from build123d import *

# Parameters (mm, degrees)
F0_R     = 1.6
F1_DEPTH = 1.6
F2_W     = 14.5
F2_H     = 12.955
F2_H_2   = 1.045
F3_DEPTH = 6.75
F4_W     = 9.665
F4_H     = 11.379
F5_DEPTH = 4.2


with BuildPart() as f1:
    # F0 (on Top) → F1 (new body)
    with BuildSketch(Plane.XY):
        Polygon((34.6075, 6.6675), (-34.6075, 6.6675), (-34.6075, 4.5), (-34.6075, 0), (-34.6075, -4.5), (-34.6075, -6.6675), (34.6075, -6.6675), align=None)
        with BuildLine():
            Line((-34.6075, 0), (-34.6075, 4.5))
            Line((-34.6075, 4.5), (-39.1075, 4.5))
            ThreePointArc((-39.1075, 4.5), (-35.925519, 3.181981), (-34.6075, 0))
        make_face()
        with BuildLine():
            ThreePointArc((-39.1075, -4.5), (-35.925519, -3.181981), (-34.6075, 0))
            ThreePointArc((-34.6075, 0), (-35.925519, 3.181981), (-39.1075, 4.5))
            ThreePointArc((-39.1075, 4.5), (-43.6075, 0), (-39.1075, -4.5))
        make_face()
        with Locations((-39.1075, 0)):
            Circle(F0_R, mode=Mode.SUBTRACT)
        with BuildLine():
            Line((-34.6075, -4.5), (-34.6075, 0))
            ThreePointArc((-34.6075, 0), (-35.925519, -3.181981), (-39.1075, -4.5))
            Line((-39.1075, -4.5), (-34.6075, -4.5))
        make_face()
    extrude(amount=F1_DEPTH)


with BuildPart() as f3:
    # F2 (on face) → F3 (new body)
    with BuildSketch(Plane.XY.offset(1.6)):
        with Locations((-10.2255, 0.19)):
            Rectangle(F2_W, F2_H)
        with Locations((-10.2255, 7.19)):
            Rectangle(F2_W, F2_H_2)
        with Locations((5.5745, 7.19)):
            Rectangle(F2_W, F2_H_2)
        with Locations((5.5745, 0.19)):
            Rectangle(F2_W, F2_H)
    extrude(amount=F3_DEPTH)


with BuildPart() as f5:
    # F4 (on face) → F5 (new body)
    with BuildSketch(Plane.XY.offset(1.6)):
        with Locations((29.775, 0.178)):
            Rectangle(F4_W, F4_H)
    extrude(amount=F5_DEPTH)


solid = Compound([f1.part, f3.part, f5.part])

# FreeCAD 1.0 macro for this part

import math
import FreeCAD as App
import Part
import Sketcher
from FreeCAD import Vector

doc = App.newDocument("Part")
params = doc.addObject("Spreadsheet::Sheet", "Params")
for row, (alias, value) in enumerate([
    ("sketch1_diameter", "3.2 mm"),
    ("sketch1_radius", "4.5 mm"),
    ("sketch1_width", "4.5 mm"),
    ("pad1_length", "1.6 mm"),
    ("sketch2_height", "14 mm"),
    ("sketch2_width", "14.5 mm"),
    ("pad2_length", "6.75 mm"),
    ("pad3_length", "4.2 mm"),
], start=1):
    params.set(f"A{row}", alias)
    params.set(f"B{row}", "=" + value)
    params.setAlias(f"B{row}", alias)

body = doc.addObject("PartDesign::Body", "Body")

sketch1 = doc.addObject("Sketcher::SketchObject", "Sketch")
body.addObject(sketch1)
sketch1.AttachmentSupport = (doc.XY_Plane, [""])
sketch1.MapMode = "FlatFace"
sketch1.addGeometry([
    Part.LineSegment(Vector(34.6, 6.7, 0), Vector(-34.6, 6.7, 0)),
    Part.LineSegment(Vector(-34.6, 6.7, 0), Vector(-34.6, 4.5, 0)),
    Part.LineSegment(Vector(-34.6, 4.5, 0), Vector(-39.1, 4.5, 0)),
    Part.ArcOfCircle(Part.Circle(Vector(-39.1, 0, 0), Vector(0, 0, 1), 4.5), math.radians(90), math.radians(270)),
    Part.LineSegment(Vector(-39.1, -4.5, 0), Vector(-34.6, -4.5, 0)),
    Part.LineSegment(Vector(-34.6, -4.5, 0), Vector(-34.6, -6.7, 0)),
    Part.LineSegment(Vector(-34.6, -6.7, 0), Vector(34.6, -6.7, 0)),
    Part.LineSegment(Vector(34.6, -6.7, 0), Vector(34.6, 6.7, 0)),
    Part.Circle(Vector(-39.1, 0, 0), Vector(0, 0, 1), 1.6),
], False)
sketch1.addConstraint([
    Sketcher.Constraint("Coincident", 0, 2, 1, 1),
    Sketcher.Constraint("Coincident", 1, 2, 2, 1),
    Sketcher.Constraint("Tangent", 2, 2, 3, 1),
    Sketcher.Constraint("Tangent", 3, 2, 4, 1),
    Sketcher.Constraint("Coincident", 4, 2, 5, 1),
    Sketcher.Constraint("Coincident", 5, 2, 6, 1),
    Sketcher.Constraint("Coincident", 6, 2, 7, 1),
    Sketcher.Constraint("Coincident", 7, 2, 0, 1),
    Sketcher.Constraint("Horizontal", 0),
    Sketcher.Constraint("Vertical", 1),
    Sketcher.Constraint("Horizontal", 2),
    Sketcher.Constraint("Horizontal", 4),
    Sketcher.Constraint("Vertical", 5),
    Sketcher.Constraint("Horizontal", 6),
    Sketcher.Constraint("Vertical", 7),
    Sketcher.Constraint("Coincident", 8, 3, 3, 3),
    Sketcher.Constraint("Symmetric", 0, 2, 6, 2, -1, 1),
    Sketcher.Constraint("Symmetric", 1, 2, 4, 2, -1),
    Sketcher.Constraint("Diameter", 8, 3.2),
    Sketcher.Constraint("Radius", 3, 4.5),
    Sketcher.Constraint("DistanceX", 2, 2, 2, 1, 4.5),
    Sketcher.Constraint("DistanceX", 0, 2, 0, 1, 69.215),
    Sketcher.Constraint("DistanceY", 7, 1, 7, 2, 13.335),
])
sketch1.setExpression("Constraints[18]", "Params.sketch1_diameter")
sketch1.setExpression("Constraints[19]", "Params.sketch1_radius")
sketch1.setExpression("Constraints[20]", "Params.sketch1_width")
pad1 = doc.addObject("PartDesign::Pad", "Pad")
body.addObject(pad1)
pad1.Profile = sketch1
pad1.setExpression("Length", "Params.pad1_length")
body2 = doc.addObject("PartDesign::Body", "Body001")
body2.AllowCompound = True

sketch2 = doc.addObject("Sketcher::SketchObject", "Sketch001")
body2.addObject(sketch2)
sketch2.AttachmentSupport = (doc.getObject("XY_Plane001"), [""])
sketch2.MapMode = "FlatFace"
sketch2.AttachmentOffset = App.Placement(Vector(0, 0, 1.6), App.Rotation())
sketch2.addGeometry([
    Part.LineSegment(Vector(-17, -6, 0), Vector(-3, -6, 0)),
    Part.LineSegment(Vector(-3, -6, 0), Vector(-3, 8, 0)),
    Part.LineSegment(Vector(-3, 8, 0), Vector(-17, 8, 0)),
    Part.LineSegment(Vector(-17, 8, 0), Vector(-17, -6, 0)),
    Part.LineSegment(Vector(-2, 8, 0), Vector(-2, -6, 0)),
    Part.LineSegment(Vector(-2, -6, 0), Vector(13, -6, 0)),
    Part.LineSegment(Vector(13, -6, 0), Vector(13, 8, 0)),
    Part.LineSegment(Vector(13, 8, 0), Vector(-2, 8, 0)),
], False)
sketch2.addConstraint([
    Sketcher.Constraint("Coincident", 0, 2, 1, 1),
    Sketcher.Constraint("Coincident", 1, 2, 2, 1),
    Sketcher.Constraint("Coincident", 2, 2, 3, 1),
    Sketcher.Constraint("Coincident", 3, 2, 0, 1),
    Sketcher.Constraint("Coincident", 4, 2, 5, 1),
    Sketcher.Constraint("Coincident", 5, 2, 6, 1),
    Sketcher.Constraint("Coincident", 6, 2, 7, 1),
    Sketcher.Constraint("Coincident", 7, 2, 4, 1),
    Sketcher.Constraint("Horizontal", 0),
    Sketcher.Constraint("Vertical", 1),
    Sketcher.Constraint("Horizontal", 2),
    Sketcher.Constraint("Vertical", 3),
    Sketcher.Constraint("Vertical", 4),
    Sketcher.Constraint("Horizontal", 5),
    Sketcher.Constraint("Vertical", 6),
    Sketcher.Constraint("Horizontal", 7),
    Sketcher.Constraint("Horizontal", 3, 2, 4, 2),
    Sketcher.Constraint("Horizontal", 2, 2, 6, 2),
    Sketcher.Constraint("Equal", 2, 5),
    Sketcher.Constraint("DistanceY", 1, 1, 1, 2, 14.0),
    Sketcher.Constraint("DistanceX", 0, 1, 0, 2, 14.5),
    Sketcher.Constraint("DistanceX", 0, 2, 4, 2, 1.3),
    Sketcher.Constraint("DistanceX", 0, 2, -1, 1, 2.9755),
    Sketcher.Constraint("DistanceY", 0, 2, -1, 1, 6.2875),
])
sketch2.setExpression("Constraints[19]", "Params.sketch2_height")
sketch2.setExpression("Constraints[20]", "Params.sketch2_width")
pad2 = doc.addObject("PartDesign::Pad", "Pad001")
body2.addObject(pad2)
pad2.Profile = sketch2
pad2.setExpression("Length", "Params.pad2_length")
body3 = doc.addObject("PartDesign::Body", "Body002")

sketch3 = doc.addObject("Sketcher::SketchObject", "Sketch002")
body3.addObject(sketch3)
sketch3.AttachmentSupport = (doc.getObject("XY_Plane002"), [""])
sketch3.MapMode = "FlatFace"
sketch3.AttachmentOffset = App.Placement(Vector(0, 0, 1.6), App.Rotation())
sketch3.addGeometry([
    Part.LineSegment(Vector(25, 6, 0), Vector(25, -6, 0)),
    Part.LineSegment(Vector(25, -6, 0), Vector(35, -6, 0)),
    Part.LineSegment(Vector(35, -6, 0), Vector(35, 6, 0)),
    Part.LineSegment(Vector(35, 6, 0), Vector(25, 6, 0)),
], False)
sketch3.addConstraint([
    Sketcher.Constraint("Coincident", 0, 2, 1, 1),
    Sketcher.Constraint("Coincident", 1, 2, 2, 1),
    Sketcher.Constraint("Coincident", 2, 2, 3, 1),
    Sketcher.Constraint("Coincident", 3, 2, 0, 1),
    Sketcher.Constraint("Vertical", 0),
    Sketcher.Constraint("Horizontal", 1),
    Sketcher.Constraint("Vertical", 2),
    Sketcher.Constraint("Horizontal", 3),
    Sketcher.Constraint("DistanceX", 1, 1, 1, 2, 9.665),
    Sketcher.Constraint("DistanceY", 0, 2, 0, 1, 11.379),
    Sketcher.Constraint("DistanceX", -1, 1, 0, 2, 24.9425),
    Sketcher.Constraint("DistanceY", 0, 2, -1, 1, 5.5115),
])
pad3 = doc.addObject("PartDesign::Pad", "Pad002")
body3.addObject(pad3)
pad3.Profile = sketch3
pad3.setExpression("Length", "Params.pad3_length")

doc.recompute()
